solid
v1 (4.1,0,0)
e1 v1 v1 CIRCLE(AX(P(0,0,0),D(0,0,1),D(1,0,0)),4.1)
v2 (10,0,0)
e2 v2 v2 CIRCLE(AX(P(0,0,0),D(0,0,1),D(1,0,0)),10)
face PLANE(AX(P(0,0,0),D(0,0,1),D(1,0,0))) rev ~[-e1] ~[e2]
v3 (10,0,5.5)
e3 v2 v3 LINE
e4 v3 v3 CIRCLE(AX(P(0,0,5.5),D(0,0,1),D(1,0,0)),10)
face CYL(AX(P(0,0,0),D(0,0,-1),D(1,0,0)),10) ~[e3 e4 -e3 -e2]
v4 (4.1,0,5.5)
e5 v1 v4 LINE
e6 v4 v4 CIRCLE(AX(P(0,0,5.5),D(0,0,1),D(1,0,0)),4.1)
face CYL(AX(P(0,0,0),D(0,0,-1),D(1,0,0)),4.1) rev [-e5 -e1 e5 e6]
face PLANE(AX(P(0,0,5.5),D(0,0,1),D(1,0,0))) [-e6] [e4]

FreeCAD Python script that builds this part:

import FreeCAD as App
import Part
import Sketcher
Q = App.Units.Quantity

doc = App.newDocument("Part")
body = doc.addObject("PartDesign::Body", "Body")

sketch1 = body.newObject("Sketcher::SketchObject", "Sketch")
sketch1.AttachmentSupport = (doc.getObject("XY_Plane"), [""])
sketch1.MapMode = "FlatFace"
sketch1.addGeometry(Part.Circle(App.Vector(0, 0, 0), App.Vector(0, 0, 1), 10), False)
sketch1.addGeometry(Part.Circle(App.Vector(0, 0, 0), App.Vector(0, 0, 1), 4.1), False)
sketch1.addConstraint(Sketcher.Constraint("Coincident", 0, 3, -1, 1))
sketch1.addConstraint(Sketcher.Constraint("Coincident", 1, 3, -1, 1))
sketch1.addConstraint(Sketcher.Constraint("Diameter", 0, Q("20 mm")))
sketch1.addConstraint(Sketcher.Constraint("Diameter", 1, Q("8.2 mm")))
pad1 = body.newObject("PartDesign::Pad", "Pad")
pad1.Profile = sketch1
pad1.Length = 5.5

doc.recompute()
